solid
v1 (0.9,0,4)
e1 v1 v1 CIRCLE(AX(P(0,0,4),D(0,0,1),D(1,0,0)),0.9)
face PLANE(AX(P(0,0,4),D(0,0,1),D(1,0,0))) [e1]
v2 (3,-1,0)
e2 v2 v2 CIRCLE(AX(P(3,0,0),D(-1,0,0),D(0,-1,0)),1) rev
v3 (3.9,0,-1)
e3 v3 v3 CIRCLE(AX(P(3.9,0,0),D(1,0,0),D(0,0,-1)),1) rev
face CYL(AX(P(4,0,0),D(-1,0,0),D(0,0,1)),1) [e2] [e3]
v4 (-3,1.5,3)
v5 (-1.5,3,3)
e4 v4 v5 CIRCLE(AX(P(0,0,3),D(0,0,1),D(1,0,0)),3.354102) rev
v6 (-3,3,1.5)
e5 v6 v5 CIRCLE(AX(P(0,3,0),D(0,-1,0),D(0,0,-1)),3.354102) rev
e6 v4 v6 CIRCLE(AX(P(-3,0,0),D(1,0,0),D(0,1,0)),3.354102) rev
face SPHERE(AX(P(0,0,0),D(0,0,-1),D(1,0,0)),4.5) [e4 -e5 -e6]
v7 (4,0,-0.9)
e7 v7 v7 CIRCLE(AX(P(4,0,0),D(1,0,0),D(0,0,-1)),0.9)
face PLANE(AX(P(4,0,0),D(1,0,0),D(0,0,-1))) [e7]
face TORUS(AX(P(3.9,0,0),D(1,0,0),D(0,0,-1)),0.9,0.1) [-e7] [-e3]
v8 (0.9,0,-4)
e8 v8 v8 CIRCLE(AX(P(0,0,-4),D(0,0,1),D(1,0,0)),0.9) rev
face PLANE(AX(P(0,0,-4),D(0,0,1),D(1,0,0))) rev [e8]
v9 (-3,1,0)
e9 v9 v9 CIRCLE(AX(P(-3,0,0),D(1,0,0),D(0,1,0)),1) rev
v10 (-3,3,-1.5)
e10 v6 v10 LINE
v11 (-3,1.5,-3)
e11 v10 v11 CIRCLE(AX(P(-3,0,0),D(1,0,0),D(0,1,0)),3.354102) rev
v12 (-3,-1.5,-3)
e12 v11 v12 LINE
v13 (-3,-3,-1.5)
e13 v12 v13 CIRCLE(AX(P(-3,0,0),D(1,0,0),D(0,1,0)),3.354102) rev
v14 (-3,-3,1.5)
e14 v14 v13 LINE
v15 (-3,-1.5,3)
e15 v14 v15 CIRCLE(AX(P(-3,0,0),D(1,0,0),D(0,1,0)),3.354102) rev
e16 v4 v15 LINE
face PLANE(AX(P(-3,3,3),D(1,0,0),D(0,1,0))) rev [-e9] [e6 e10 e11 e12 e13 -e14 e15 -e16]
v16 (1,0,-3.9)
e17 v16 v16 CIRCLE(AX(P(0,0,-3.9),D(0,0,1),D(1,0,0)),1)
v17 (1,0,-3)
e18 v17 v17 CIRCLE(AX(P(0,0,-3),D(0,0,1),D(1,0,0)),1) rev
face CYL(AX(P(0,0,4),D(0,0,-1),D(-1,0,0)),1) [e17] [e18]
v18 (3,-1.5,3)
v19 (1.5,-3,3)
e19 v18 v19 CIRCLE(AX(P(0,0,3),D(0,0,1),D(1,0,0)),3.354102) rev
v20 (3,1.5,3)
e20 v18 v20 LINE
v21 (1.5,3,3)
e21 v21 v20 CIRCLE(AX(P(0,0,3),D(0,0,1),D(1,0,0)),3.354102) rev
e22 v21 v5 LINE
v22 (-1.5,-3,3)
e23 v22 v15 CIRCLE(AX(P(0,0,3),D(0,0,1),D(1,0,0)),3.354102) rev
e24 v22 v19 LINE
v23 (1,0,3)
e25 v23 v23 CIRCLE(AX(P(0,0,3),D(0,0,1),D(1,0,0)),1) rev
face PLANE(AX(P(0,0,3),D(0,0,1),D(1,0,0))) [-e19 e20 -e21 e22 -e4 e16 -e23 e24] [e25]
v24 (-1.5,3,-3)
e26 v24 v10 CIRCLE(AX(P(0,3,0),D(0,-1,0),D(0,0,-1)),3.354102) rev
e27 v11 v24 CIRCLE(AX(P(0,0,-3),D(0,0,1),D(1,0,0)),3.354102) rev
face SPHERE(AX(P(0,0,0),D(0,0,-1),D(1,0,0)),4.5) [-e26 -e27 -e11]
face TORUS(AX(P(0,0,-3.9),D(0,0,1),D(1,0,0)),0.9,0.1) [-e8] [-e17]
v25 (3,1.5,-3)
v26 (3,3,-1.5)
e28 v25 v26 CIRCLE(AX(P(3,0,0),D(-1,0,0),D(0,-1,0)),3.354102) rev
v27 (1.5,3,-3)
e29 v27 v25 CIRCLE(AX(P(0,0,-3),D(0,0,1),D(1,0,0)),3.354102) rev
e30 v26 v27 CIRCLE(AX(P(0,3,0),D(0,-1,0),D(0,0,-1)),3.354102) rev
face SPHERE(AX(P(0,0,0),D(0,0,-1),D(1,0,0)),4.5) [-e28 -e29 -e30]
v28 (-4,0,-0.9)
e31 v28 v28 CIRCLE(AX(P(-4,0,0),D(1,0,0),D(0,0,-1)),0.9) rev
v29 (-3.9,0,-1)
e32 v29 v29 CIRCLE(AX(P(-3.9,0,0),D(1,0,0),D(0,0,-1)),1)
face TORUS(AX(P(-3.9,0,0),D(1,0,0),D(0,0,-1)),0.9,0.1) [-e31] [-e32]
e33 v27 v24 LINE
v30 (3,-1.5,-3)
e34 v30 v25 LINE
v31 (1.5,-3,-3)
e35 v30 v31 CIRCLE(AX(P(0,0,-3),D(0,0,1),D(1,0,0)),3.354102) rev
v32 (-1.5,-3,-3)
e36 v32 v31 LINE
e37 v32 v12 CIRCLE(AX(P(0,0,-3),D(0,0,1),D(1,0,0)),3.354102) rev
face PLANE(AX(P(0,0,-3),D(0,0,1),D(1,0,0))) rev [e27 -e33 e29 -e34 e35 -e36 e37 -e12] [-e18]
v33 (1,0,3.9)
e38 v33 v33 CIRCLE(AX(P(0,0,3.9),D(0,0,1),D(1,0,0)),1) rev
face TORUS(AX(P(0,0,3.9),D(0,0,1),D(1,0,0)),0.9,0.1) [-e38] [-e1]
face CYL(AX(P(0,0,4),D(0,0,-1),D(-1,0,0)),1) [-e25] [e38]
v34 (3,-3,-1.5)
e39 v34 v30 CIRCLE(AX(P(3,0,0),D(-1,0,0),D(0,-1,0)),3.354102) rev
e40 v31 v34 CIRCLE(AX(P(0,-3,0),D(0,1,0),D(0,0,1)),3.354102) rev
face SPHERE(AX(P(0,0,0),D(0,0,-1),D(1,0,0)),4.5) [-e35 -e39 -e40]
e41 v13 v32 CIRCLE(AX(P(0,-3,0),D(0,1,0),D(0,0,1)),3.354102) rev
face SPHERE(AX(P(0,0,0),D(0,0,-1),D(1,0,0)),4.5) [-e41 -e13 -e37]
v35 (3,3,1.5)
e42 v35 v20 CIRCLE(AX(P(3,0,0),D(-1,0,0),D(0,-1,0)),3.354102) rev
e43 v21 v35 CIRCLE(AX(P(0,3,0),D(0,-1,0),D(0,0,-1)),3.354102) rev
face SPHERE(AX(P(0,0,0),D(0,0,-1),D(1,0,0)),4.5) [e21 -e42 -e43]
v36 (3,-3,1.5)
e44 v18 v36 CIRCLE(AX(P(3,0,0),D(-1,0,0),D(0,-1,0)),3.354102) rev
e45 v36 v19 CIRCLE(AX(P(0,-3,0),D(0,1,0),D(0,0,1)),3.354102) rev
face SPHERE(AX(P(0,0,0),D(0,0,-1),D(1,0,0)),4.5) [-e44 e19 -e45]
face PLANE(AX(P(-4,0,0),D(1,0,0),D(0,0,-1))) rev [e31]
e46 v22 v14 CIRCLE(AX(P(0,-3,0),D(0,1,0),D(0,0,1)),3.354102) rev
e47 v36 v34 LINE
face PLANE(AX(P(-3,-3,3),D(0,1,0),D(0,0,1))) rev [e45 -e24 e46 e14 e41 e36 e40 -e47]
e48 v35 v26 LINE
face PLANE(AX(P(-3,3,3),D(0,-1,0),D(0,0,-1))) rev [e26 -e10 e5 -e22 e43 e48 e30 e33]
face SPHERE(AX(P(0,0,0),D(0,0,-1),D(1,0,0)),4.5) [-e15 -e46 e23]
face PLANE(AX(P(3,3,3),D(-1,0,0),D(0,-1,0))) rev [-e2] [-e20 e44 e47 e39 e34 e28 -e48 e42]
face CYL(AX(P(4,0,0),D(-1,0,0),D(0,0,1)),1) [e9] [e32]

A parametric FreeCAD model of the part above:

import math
import FreeCAD as App
import Part
import Sketcher

V = App.Vector
Q = App.Units.Quantity


def edges_at(feature, points):
    """Names of the edges that pass closest to the given points."""
    edges = feature.Shape.Edges
    near = lambda p: min(range(len(edges)), key=lambda i: edges[i].distToShape(Part.Vertex(*p))[0])
    return sorted({f"Edge{near(p) + 1}" for p in points})


def add_polygon(sketch, points):
    """Adds a closed chain of lines whose ends are joined by coincident constraints."""
    first, n = sketch.GeometryCount, len(points)
    for a, b in zip(points, points[1:] + points[:1]):
        sketch.addGeometry(Part.LineSegment(App.Vector(*a, 0), App.Vector(*b, 0)), False)
    for i in range(n):
        sketch.addConstraint(Sketcher.Constraint("Coincident", first + i, 2, first + (i + 1) % n, 1))

doc = App.newDocument("Part")
body = doc.addObject("PartDesign::Body", "Body")

# Sketch on XY plane
sketch1 = doc.addObject("Sketcher::SketchObject", "Sketch")
body.addObject(sketch1)
sketch1.AttachmentSupport = (doc.XY_Plane, [""])
sketch1.MapMode = "FlatFace"
add_polygon(sketch1, [(-3, 3), (-3, -3), (3, -3), (3, 3)])  # lines 0-3
sketch1.addConstraint([
    Sketcher.Constraint("Vertical", 0),
    Sketcher.Constraint("Horizontal", 1),
    Sketcher.Constraint("Vertical", 2),
    Sketcher.Constraint("Horizontal", 3),
    Sketcher.Constraint("Symmetric", 0, 2, 2, 2, -1, 1),
    Sketcher.Constraint("Equal", 3, 0),
    Sketcher.Constraint("DistanceX", 1, 1, 1, 2, Q("6 mm")),
])
pad1 = doc.addObject("PartDesign::Pad", "Pad")
body.addObject(pad1)
pad1.Profile = sketch1
pad1.Length = 6
pad1.Midplane = True

# Sketch on XZ plane
sketch2 = doc.addObject("Sketcher::SketchObject", "Sketch001")
body.addObject(sketch2)
sketch2.AttachmentSupport = (doc.XZ_Plane, [""])
sketch2.MapMode = "FlatFace"
sketch2.addGeometry([
    Part.LineSegment(V(0, 6.318562, 0), V(0, 4.5, 0)),  # 0
    Part.ArcOfCircle(Part.Circle(V(0, 0, 0), V(0, 0, 1), 4.5), math.radians(90), math.radians(270)),  # 1
    Part.LineSegment(V(0, -4.5, 0), V(0, -6.288805, 0)),  # 2
    Part.LineSegment(V(0, -6.288805, 0), V(-7, -6.288805, 0)),  # 3
    Part.LineSegment(V(-7, -6.288805, 0), V(-7, 6.318562, 0)),  # 4
    Part.LineSegment(V(-7, 6.318562, 0), V(0, 6.318562, 0)),  # 5
], False)
sketch2.addConstraint([
    Sketcher.Constraint("Coincident", 0, 2, 1, 1),
    Sketcher.Constraint("Coincident", 1, 2, 2, 1),
    Sketcher.Constraint("Coincident", 2, 2, 3, 1),
    Sketcher.Constraint("Coincident", 3, 2, 4, 1),
    Sketcher.Constraint("Coincident", 4, 2, 5, 1),
    Sketcher.Constraint("Coincident", 5, 2, 0, 1),
    Sketcher.Constraint("Vertical", 0),
    Sketcher.Constraint("Vertical", 2),
    Sketcher.Constraint("Horizontal", 3),
    Sketcher.Constraint("Vertical", 4),
    Sketcher.Constraint("Horizontal", 5),
    Sketcher.Constraint("Coincident", 1, 3, -1, 1),
    Sketcher.Constraint("PointOnObject", 0, 2, -2),
    Sketcher.Constraint("PointOnObject", 1, 2, -2),
    Sketcher.Constraint("Radius", 1, Q("4.5 mm")),
    Sketcher.Constraint("DistanceX", 3, 2, 3, 1, Q("7 mm")),
    Sketcher.Constraint("DistanceY", 0, 2, 0, 1, Q("1.818562 mm")),
    Sketcher.Constraint("DistanceY", 2, 2, 2, 1, Q("1.788805 mm")),
])
groove = doc.addObject("PartDesign::Groove", "Groove")
body.addObject(groove)
groove.Profile = sketch2
groove.ReferenceAxis = (sketch2, ["V_Axis"])
groove.Angle = 360

# Sketch on XY plane
sketch3 = doc.addObject("Sketcher::SketchObject", "Sketch002")
body.addObject(sketch3)
sketch3.AttachmentSupport = (doc.XY_Plane, [""])
sketch3.MapMode = "FlatFace"
sketch3.addGeometry(Part.Circle(V(0, 0, 0), V(0, 0, 1), 1), False)
sketch3.addConstraint([
    Sketcher.Constraint("Coincident", 0, 3, -1, 1),
    Sketcher.Constraint("Diameter", 0, Q("2 mm")),
])
pad2 = doc.addObject("PartDesign::Pad", "Pad001")
body.addObject(pad2)
pad2.Profile = sketch3
pad2.Length = 8
pad2.Midplane = True

# Sketch on YZ plane
sketch4 = doc.addObject("Sketcher::SketchObject", "Sketch003")
body.addObject(sketch4)
sketch4.AttachmentSupport = (doc.YZ_Plane, [""])
sketch4.MapMode = "FlatFace"
sketch4.addGeometry(Part.Circle(V(0, 0, 0), V(0, 0, 1), 1), False)
sketch4.addConstraint([
    Sketcher.Constraint("Coincident", 0, 3, -1, 1),
    Sketcher.Constraint("Diameter", 0, Q("2 mm")),
])
pad3 = doc.addObject("PartDesign::Pad", "Pad002")
body.addObject(pad3)
pad3.Profile = sketch4
pad3.Length = 8
pad3.Midplane = True
doc.recompute()

fillet = doc.addObject("PartDesign::Fillet", "Fillet")
body.addObject(fillet)
fillet.Base = (pad3, edges_at(pad3, [
    (-1, 0, -4),
    (-1, 0, 4),
    (-4, 0, 1),
    (4, 0, 1),
]))
fillet.Radius = 0.1

doc.recompute()
